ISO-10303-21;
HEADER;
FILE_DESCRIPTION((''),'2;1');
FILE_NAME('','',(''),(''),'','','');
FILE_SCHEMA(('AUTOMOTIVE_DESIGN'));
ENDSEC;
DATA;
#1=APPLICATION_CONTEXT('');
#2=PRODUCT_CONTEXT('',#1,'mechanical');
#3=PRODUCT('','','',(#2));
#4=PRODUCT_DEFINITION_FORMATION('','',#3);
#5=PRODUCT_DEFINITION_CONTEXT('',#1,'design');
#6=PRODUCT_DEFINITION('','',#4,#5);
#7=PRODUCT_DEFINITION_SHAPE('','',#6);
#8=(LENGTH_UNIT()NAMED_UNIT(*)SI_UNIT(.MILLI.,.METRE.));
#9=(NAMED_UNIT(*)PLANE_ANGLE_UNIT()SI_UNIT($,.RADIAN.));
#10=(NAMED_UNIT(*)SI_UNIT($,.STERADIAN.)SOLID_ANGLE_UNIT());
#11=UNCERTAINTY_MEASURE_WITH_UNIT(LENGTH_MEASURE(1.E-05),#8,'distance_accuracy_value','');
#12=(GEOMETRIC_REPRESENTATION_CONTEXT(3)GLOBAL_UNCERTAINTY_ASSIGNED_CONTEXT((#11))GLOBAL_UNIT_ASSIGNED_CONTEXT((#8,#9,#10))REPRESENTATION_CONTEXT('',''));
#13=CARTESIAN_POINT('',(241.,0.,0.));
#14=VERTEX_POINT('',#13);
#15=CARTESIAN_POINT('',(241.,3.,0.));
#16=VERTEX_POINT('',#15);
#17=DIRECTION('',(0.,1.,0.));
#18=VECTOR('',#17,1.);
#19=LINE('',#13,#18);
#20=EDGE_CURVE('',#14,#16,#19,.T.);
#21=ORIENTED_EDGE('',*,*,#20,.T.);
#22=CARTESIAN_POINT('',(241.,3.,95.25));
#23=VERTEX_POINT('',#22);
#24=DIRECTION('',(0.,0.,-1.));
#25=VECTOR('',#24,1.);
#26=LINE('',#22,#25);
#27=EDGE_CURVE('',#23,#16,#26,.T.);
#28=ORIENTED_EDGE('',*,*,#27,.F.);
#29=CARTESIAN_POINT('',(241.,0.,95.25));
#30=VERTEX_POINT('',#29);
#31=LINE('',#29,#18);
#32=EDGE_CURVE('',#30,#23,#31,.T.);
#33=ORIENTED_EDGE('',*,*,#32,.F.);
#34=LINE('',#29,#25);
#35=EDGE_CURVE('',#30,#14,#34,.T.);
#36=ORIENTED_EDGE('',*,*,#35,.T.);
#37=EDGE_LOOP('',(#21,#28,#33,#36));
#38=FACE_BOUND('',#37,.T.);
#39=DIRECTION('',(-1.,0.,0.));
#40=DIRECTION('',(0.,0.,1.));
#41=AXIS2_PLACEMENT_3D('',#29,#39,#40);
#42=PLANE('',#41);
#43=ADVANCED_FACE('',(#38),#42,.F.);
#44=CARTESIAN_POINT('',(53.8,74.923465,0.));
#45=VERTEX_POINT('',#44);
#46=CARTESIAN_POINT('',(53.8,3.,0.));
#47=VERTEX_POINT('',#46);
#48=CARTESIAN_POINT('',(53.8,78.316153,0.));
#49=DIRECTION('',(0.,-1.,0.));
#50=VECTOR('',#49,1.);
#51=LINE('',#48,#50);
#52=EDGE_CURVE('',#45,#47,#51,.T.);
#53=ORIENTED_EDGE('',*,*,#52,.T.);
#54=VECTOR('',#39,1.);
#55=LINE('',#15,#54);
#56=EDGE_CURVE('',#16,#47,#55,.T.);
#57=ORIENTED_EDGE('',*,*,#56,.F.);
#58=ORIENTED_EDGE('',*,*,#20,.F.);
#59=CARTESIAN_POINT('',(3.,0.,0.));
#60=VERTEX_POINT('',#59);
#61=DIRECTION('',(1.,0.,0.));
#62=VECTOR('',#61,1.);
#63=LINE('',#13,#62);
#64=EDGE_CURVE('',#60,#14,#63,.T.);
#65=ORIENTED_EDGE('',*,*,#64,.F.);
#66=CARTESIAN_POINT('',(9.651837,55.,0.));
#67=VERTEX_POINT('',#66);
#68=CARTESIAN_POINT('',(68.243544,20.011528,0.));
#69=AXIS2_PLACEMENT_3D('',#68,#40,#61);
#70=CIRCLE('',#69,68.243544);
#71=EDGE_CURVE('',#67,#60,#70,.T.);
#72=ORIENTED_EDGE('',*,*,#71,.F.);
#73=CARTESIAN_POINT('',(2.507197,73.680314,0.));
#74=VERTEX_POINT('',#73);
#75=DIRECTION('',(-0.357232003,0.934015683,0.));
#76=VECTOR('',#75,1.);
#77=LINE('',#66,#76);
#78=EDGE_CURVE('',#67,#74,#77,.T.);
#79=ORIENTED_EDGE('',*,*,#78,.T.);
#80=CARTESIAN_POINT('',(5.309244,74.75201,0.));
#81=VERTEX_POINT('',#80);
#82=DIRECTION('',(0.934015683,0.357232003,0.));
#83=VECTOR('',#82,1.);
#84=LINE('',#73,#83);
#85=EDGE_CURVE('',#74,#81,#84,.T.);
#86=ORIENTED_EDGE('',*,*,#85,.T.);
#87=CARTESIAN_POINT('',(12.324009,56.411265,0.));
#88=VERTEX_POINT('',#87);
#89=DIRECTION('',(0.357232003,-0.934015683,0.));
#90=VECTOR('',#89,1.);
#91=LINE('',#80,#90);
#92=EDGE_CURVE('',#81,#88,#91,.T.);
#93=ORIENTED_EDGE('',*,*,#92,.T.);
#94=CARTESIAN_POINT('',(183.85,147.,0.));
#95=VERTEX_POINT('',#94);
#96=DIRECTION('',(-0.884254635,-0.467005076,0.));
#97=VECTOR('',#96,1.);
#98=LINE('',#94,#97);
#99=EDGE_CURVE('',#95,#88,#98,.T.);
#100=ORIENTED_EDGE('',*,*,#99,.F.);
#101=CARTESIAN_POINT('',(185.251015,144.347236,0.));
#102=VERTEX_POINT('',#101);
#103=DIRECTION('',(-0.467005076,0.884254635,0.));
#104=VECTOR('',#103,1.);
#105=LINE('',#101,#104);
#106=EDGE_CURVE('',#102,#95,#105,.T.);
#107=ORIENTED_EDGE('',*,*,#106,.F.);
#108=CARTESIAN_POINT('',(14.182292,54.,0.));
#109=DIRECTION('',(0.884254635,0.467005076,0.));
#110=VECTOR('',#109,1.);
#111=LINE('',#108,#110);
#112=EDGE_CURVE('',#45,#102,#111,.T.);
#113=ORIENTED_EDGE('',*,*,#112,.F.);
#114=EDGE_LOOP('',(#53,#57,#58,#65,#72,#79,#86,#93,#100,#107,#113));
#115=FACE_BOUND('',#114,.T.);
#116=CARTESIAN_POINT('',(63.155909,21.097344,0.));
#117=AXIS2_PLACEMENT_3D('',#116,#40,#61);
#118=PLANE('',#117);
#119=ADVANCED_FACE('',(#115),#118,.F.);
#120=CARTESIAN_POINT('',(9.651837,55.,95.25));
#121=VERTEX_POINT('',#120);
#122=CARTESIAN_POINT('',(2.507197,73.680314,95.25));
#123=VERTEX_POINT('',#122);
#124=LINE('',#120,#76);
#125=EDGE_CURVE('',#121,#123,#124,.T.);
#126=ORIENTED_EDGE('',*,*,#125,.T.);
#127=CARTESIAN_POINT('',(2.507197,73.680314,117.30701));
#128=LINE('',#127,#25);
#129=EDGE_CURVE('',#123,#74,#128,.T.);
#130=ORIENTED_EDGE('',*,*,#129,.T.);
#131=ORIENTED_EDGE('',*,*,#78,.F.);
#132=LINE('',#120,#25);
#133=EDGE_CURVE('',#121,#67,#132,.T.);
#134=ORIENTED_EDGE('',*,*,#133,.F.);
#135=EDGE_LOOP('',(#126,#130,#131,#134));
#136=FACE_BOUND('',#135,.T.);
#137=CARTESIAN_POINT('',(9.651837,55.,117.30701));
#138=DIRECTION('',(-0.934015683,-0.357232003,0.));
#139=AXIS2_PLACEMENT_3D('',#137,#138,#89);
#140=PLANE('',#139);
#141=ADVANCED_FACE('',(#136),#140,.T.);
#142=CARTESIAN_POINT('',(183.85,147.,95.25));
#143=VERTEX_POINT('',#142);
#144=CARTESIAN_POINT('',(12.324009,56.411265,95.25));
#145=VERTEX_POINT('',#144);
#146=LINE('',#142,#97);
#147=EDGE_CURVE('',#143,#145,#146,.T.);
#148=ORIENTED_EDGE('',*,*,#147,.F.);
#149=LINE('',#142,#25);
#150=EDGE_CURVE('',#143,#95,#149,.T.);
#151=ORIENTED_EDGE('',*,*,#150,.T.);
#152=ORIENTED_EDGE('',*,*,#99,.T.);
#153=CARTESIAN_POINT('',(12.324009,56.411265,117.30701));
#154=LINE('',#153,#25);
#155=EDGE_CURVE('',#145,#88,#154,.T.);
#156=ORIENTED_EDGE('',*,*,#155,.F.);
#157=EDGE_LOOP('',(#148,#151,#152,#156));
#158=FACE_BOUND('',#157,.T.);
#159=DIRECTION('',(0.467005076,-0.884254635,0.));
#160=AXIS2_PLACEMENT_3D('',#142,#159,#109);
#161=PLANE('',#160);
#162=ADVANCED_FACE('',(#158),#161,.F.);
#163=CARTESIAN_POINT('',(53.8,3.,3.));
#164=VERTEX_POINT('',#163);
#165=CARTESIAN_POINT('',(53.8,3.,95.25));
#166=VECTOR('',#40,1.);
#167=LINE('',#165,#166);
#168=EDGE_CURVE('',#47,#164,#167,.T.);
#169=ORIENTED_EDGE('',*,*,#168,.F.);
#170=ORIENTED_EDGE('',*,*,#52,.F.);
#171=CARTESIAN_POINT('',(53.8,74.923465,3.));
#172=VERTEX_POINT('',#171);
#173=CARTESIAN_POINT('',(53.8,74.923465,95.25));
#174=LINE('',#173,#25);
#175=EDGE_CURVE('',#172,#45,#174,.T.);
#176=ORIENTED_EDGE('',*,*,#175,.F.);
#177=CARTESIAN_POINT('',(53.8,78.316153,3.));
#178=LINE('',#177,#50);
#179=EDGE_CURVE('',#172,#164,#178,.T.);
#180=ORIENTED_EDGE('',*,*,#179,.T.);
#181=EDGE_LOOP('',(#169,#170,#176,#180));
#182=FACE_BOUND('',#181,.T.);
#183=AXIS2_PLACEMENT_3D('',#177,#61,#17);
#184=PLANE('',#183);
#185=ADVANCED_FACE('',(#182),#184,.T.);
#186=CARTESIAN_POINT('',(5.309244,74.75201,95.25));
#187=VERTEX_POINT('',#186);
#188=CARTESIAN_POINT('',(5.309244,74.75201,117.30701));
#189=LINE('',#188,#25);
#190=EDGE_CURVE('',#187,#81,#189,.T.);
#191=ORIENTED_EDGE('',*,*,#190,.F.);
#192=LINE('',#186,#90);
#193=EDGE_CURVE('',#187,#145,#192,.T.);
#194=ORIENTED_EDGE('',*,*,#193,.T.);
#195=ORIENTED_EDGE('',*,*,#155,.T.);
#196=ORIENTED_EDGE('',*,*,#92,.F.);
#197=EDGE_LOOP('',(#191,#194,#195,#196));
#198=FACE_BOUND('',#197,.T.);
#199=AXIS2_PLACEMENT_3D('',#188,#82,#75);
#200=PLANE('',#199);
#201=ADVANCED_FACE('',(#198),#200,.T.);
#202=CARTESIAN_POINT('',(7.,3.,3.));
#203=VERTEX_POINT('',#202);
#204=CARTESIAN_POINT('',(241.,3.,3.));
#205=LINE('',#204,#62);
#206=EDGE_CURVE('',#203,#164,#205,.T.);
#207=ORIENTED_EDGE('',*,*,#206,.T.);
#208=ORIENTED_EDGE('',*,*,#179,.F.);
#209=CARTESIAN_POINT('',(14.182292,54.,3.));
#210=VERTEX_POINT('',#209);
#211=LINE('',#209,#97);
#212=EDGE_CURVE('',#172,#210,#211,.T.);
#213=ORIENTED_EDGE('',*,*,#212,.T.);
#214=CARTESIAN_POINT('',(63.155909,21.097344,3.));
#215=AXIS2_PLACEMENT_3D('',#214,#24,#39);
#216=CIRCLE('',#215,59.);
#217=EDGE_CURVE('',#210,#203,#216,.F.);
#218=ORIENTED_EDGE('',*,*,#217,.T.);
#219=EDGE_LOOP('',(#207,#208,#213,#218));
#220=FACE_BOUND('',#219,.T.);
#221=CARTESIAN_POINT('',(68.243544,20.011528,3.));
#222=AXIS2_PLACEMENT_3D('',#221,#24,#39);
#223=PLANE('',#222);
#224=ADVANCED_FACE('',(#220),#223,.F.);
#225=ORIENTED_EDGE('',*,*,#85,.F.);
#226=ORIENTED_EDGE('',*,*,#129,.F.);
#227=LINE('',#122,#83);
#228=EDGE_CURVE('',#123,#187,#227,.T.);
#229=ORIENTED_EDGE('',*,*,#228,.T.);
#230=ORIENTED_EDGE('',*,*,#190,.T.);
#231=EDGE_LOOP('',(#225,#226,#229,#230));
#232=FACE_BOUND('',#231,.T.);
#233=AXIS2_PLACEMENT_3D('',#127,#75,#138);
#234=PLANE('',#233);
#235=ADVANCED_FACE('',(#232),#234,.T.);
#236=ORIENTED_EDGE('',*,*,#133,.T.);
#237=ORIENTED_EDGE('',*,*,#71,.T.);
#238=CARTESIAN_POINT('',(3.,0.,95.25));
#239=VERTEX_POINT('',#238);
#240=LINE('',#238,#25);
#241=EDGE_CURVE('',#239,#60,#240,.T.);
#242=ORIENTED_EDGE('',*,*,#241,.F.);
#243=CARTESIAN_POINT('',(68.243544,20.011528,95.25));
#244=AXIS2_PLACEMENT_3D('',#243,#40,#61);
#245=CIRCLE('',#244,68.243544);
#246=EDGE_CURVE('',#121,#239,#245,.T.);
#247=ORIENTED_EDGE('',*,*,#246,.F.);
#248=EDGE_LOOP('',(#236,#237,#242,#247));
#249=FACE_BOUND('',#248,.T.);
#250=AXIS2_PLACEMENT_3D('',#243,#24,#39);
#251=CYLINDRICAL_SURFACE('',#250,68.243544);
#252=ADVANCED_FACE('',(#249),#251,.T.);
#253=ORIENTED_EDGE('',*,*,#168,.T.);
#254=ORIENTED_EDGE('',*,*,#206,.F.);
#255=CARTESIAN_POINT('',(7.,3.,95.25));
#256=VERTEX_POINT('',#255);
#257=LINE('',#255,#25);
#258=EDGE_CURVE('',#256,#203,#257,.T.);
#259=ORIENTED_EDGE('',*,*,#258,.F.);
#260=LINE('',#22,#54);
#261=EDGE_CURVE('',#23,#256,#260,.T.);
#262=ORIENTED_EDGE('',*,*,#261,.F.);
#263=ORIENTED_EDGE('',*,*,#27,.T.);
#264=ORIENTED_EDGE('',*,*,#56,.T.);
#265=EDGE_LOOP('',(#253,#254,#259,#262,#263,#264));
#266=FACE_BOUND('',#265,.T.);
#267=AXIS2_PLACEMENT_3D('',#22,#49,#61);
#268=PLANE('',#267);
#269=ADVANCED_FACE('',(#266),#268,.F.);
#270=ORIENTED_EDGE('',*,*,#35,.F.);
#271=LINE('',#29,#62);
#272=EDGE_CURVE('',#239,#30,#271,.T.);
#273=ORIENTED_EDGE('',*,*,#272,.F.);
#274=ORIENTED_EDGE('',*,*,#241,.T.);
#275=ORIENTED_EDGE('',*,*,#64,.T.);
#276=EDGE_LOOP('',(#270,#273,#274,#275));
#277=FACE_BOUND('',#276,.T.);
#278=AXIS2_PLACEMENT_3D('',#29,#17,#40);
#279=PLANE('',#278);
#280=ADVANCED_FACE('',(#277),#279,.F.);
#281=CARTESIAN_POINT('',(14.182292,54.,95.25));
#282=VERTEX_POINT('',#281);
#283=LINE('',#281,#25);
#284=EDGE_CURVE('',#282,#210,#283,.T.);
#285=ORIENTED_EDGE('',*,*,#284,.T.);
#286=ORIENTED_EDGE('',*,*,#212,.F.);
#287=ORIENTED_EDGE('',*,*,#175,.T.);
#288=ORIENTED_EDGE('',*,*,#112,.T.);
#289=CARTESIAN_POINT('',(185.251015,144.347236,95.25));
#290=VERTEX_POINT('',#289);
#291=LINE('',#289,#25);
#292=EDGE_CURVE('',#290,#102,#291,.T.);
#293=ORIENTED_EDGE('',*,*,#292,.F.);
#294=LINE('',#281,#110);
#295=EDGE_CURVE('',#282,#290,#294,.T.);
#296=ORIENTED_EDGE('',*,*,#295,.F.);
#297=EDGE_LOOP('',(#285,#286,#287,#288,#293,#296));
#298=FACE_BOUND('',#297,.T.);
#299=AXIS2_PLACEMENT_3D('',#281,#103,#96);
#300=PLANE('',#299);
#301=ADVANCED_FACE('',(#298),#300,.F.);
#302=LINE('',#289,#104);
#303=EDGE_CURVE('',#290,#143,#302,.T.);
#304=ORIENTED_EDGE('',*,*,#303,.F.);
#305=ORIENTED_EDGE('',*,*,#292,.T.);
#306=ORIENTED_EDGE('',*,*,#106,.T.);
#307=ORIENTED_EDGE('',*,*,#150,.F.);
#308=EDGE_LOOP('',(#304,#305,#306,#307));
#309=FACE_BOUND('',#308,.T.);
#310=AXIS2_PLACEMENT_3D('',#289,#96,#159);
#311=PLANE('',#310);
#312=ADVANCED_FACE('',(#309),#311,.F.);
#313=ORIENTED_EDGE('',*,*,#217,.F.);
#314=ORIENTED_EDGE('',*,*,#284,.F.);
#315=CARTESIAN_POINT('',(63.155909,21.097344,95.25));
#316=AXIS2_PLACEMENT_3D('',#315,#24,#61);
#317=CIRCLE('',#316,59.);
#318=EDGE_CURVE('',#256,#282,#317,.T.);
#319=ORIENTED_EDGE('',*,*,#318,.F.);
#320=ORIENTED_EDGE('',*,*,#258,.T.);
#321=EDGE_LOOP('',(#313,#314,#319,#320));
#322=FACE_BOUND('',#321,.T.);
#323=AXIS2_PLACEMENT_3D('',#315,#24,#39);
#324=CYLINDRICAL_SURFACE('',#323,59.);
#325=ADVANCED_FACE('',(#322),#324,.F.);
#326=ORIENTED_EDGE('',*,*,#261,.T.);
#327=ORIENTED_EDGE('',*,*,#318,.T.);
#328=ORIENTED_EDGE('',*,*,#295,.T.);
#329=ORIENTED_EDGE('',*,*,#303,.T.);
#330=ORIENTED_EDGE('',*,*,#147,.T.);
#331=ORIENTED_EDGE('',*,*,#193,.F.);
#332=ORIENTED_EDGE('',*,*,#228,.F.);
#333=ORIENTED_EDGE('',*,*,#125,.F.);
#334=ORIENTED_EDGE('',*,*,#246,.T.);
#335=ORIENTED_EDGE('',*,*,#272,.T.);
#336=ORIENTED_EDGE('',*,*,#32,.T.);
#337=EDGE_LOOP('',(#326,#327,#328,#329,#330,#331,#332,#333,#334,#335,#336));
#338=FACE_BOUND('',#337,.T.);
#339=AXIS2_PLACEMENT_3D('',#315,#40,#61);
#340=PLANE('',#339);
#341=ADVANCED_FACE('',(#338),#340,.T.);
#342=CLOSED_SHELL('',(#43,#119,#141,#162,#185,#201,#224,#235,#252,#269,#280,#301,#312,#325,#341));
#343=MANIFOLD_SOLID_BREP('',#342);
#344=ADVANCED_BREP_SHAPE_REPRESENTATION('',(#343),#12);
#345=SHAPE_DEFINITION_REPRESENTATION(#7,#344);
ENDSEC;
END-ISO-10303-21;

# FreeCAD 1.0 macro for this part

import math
import FreeCAD as App
import Part
import Sketcher
from FreeCAD import Vector


def add_polygon(sketch, points):
    """Adds a closed chain of lines whose ends are joined by coincident constraints."""
    first, n = sketch.GeometryCount, len(points)
    for a, b in zip(points, points[1:] + points[:1]):
        sketch.addGeometry(Part.LineSegment(App.Vector(*a, 0), App.Vector(*b, 0)), False)
    for i in range(n):
        sketch.addConstraint(Sketcher.Constraint("Coincident", first + i, 2, first + (i + 1) % n, 1))

doc = App.newDocument("Part")
body = doc.addObject("PartDesign::Body", "Body")

sketch1 = body.newObject("Sketcher::SketchObject", "Sketch")
sketch1.AttachmentSupport = (doc.getObject("XY_Plane"), [""])
sketch1.MapMode = "FlatFace"
sketch1.addGeometry([
    Part.LineSegment(Vector(3, 0, 0), Vector(241, 0, 0)),
    Part.LineSegment(Vector(241, 0, 0), Vector(241, 3, 0)),
    Part.LineSegment(Vector(241, 3, 0), Vector(7, 3, 0)),
    Part.ArcOfCircle(Part.Circle(Vector(63.2, 21.1, 0), Vector(0, 0, 1), 59), math.radians(146), math.radians(198)),
    Part.LineSegment(Vector(14.2, 54, 0), Vector(185.3, 144.3, 0)),
    Part.LineSegment(Vector(185.3, 144.3, 0), Vector(183.8, 147, 0)),
    Part.LineSegment(Vector(183.8, 147, 0), Vector(9.7, 55, 0)),
    Part.ArcOfCircle(Part.Circle(Vector(68.2, 20, 0), Vector(0, 0, 1), 68.2), math.radians(149), math.radians(197)),
], False)
sketch1.addConstraint([
    Sketcher.Constraint("Coincident", 0, 2, 1, 1),
    Sketcher.Constraint("Coincident", 1, 2, 2, 1),
    Sketcher.Constraint("Coincident", 2, 2, 3, 2),
    Sketcher.Constraint("Coincident", 3, 1, 4, 1),
    Sketcher.Constraint("Coincident", 4, 2, 5, 1),
    Sketcher.Constraint("Coincident", 5, 2, 6, 1),
    Sketcher.Constraint("Coincident", 6, 2, 7, 1),
    Sketcher.Constraint("Coincident", 7, 2, 0, 1),
    Sketcher.Constraint("Horizontal", 0),
    Sketcher.Constraint("Vertical", 1),
    Sketcher.Constraint("Horizontal", 2),
    Sketcher.Constraint("PointOnObject", 0, 2, -1),
    Sketcher.Constraint("Perpendicular", 4, 5),
    Sketcher.Constraint("Perpendicular", 5, 6),
    Sketcher.Constraint("Radius", 3, 59.0),
    Sketcher.Constraint("DistanceX", 0, 1, 0, 2, 238.0),
    Sketcher.Constraint("DistanceX", 2, 2, 2, 1, 234.0),
    Sketcher.Constraint("DistanceY", 1, 1, 1, 2, 3.0),
    Sketcher.Constraint("Distance", 5, 3.0),
    Sketcher.Constraint("Distance", 6, 197.0),
    Sketcher.Constraint("DistanceX", -1, 1, 0, 2, 241.0),
    Sketcher.Constraint("DistanceY", -1, 1, 3, 1, 54.0),
    Sketcher.Constraint("DistanceY", -1, 1, 5, 2, 147.0),
    Sketcher.Constraint("DistanceY", -1, 1, 6, 2, 55.0),
    Sketcher.Constraint("DistanceX", -1, 1, 5, 2, 183.85),
    Sketcher.Constraint("Radius", 7, 68.243544),
])
pad1 = body.newObject("PartDesign::Pad", "Pad")
pad1.Profile = sketch1
pad1.Length = 95.25

sketch2 = body.newObject("Sketcher::SketchObject", "Sketch001")
sketch2.AttachmentSupport = (doc.getObject("XY_Plane"), [""])
sketch2.MapMode = "FlatFace"
sketch2.addGeometry([
    Part.LineSegment(Vector(54, 78, 0), Vector(54, 0, 0)),
    Part.LineSegment(Vector(54, 0, 0), Vector(3, 0, 0)),
    Part.ArcOfCircle(Part.Circle(Vector(68, 20, 0), Vector(0, 0, 1), 68), math.radians(149), math.radians(197)),
    Part.LineSegment(Vector(10, 55, 0), Vector(54, 78, 0)),
], False)
sketch2.addConstraint([
    Sketcher.Constraint("Coincident", 0, 2, 1, 1),
    Sketcher.Constraint("Coincident", 1, 2, 2, 2),
    Sketcher.Constraint("Coincident", 2, 1, 3, 1),
    Sketcher.Constraint("Coincident", 3, 2, 0, 1),
    Sketcher.Constraint("Vertical", 0),
    Sketcher.Constraint("Horizontal", 1),
    Sketcher.Constraint("PointOnObject", 0, 2, -1),
    Sketcher.Constraint("DistanceX", 1, 2, 1, 1, 50.8),
    Sketcher.Constraint("DistanceX", -1, 1, 1, 2, 3.0),
    Sketcher.Constraint("DistanceY", -1, 1, 2, 1, 55.0),
    Sketcher.Constraint("Radius", 2, 68.243544),
    Sketcher.Constraint("Distance", 3, 49.92698),
    Sketcher.Constraint("DistanceY", 0, 2, 0, 1, 78.316153),
])
pad2 = body.newObject("PartDesign::Pad", "Pad001")
pad2.Profile = sketch2
pad2.Length = 3

sketch3 = body.newObject("Sketcher::SketchObject", "Sketch002")
sketch3.AttachmentSupport = (doc.getObject("XY_Plane"), [""])
sketch3.MapMode = "FlatFace"
add_polygon(sketch3, [(9.7, 55), (2.5, 73.7), (5.3, 74.8), (12.3, 56.4)])
sketch3.addConstraint([
    Sketcher.Constraint("Perpendicular", 0, 1),
    Sketcher.Constraint("Perpendicular", 1, 2),
    Sketcher.Constraint("Distance", 0, 20.0),
    Sketcher.Constraint("Distance", 1, 3.0),
    Sketcher.Constraint("DistanceY", -1, 1, 3, 2, 55.0),
    Sketcher.Constraint("Distance", 2, 19.636441),
    Sketcher.Constraint("DistanceY", -1, 1, 1, 2, 74.75201),
    Sketcher.Constraint("DistanceX", -1, 1, 2, 2, 12.324009),
])
pad3 = body.newObject("PartDesign::Pad", "Pad002")
pad3.Profile = sketch3
pad3.Length = 95.25

doc.recompute()
